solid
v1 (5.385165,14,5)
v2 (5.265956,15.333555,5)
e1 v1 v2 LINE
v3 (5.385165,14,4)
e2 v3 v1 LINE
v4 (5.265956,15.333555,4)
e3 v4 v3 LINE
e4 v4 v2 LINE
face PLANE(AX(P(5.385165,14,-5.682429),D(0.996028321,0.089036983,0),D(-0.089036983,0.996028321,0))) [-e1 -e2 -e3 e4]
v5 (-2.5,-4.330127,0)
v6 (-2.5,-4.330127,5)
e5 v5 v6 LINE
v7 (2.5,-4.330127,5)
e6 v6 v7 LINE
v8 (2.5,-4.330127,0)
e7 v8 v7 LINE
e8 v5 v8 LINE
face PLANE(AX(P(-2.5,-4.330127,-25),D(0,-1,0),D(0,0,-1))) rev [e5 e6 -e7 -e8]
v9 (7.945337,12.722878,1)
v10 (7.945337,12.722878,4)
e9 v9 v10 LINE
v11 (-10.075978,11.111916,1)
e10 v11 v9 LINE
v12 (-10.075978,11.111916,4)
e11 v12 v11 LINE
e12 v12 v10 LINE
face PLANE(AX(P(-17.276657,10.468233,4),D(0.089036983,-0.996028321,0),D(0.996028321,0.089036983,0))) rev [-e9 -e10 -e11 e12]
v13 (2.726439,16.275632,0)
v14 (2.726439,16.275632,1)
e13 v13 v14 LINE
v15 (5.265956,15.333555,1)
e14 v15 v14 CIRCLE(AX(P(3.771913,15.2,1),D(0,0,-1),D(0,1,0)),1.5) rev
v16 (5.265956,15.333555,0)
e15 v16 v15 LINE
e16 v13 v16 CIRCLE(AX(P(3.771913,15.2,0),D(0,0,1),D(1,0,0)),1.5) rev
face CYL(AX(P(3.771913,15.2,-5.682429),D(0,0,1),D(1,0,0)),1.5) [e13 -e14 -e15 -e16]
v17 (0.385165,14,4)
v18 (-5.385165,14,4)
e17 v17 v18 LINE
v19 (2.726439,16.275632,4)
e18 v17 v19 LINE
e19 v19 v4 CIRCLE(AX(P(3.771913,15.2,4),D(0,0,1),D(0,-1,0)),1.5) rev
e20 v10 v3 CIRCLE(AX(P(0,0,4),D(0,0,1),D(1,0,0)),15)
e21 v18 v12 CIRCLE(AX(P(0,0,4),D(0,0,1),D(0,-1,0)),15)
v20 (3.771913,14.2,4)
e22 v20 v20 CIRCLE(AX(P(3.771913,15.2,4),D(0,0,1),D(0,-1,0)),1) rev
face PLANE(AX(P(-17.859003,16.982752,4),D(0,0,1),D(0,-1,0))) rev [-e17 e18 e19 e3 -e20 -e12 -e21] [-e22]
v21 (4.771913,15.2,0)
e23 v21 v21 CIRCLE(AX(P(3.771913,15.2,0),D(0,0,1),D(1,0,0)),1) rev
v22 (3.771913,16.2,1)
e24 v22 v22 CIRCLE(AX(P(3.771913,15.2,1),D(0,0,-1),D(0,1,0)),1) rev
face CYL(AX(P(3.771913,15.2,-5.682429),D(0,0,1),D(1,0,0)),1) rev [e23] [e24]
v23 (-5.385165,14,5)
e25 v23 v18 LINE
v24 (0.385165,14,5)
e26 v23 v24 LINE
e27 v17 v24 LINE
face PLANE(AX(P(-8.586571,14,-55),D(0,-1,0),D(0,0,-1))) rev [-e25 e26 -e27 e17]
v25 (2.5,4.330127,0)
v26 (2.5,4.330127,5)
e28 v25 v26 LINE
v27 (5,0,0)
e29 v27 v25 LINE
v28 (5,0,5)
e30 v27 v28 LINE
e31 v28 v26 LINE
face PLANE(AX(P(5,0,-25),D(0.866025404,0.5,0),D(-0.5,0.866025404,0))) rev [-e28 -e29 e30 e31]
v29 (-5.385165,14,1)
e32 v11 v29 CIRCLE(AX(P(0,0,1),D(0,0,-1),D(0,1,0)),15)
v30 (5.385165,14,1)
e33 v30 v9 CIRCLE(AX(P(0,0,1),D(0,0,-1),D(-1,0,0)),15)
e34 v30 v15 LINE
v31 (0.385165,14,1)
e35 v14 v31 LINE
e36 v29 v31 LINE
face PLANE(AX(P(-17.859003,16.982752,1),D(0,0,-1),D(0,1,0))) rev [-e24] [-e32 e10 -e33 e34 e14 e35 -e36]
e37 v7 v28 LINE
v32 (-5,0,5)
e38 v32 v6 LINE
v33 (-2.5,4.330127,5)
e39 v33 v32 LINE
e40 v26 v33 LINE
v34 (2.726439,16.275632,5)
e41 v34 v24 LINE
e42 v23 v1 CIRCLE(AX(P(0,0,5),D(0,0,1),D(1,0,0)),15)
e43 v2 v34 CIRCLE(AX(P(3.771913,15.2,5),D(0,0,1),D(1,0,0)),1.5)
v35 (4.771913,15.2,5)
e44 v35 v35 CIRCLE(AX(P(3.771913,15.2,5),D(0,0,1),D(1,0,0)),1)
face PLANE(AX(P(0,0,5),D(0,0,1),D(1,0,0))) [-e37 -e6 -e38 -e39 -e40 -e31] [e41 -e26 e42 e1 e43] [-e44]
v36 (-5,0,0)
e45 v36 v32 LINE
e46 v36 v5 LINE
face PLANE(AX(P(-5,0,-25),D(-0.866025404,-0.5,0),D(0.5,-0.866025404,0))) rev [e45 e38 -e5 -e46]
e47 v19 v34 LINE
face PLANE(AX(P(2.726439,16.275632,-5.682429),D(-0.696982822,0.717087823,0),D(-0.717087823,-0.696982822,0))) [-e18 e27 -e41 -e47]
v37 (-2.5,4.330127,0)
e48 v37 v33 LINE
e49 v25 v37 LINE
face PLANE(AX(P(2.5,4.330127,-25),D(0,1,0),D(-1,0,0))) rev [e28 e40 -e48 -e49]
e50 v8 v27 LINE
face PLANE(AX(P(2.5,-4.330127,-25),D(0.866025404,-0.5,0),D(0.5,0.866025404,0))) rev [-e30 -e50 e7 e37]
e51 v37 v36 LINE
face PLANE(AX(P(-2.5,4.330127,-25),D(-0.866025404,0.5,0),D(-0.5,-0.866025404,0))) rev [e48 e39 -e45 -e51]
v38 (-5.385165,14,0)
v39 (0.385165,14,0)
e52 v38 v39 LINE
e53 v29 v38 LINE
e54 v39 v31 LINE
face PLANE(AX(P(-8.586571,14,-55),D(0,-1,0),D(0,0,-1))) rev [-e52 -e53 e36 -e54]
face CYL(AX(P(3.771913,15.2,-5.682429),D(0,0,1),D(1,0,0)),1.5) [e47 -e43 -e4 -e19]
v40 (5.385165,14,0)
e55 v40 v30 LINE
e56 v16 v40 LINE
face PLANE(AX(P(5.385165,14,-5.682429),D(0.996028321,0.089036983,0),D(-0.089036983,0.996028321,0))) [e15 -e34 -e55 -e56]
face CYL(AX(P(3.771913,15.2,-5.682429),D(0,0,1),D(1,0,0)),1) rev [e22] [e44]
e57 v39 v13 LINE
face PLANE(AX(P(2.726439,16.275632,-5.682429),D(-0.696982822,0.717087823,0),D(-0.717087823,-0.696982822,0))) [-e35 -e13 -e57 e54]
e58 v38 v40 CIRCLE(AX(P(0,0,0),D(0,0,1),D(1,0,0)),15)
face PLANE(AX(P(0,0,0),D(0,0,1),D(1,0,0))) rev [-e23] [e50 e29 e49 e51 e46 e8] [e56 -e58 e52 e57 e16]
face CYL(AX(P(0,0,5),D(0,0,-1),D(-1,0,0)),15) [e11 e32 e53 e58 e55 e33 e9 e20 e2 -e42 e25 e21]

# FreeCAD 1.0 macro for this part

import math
import FreeCAD as App
import Part
import Sketcher
from FreeCAD import Vector
Q = App.Units.Quantity

doc = App.newDocument("Part")
params = doc.addObject("Spreadsheet::Sheet", "Params")
for row, (alias, value) in enumerate([
    ("sketch1_diameter", "30 mm"),
    ("pad1_length", "5 mm"),
    ("sketch2_width", "5 mm"),
    ("sketch2_length", "5 mm"),
    ("pocket1_length", "30 mm"),
    ("pocket2_length", "60 mm"),
    ("sketch4_diameter", "2 mm"),
    ("sketch4_radius", "1.5 mm"),
    ("sketch4_width", "5 mm"),
    ("pad2_length", "5 mm"),
    ("sketch5_width", "3 mm"),
    ("sketch6_width", "3 mm"),
    ("sketch6_height", "1.5 mm"),
], start=1):
    params.set(f"A{row}", alias)
    params.set(f"B{row}", "=" + value)
    params.setAlias(f"B{row}", alias)

body = doc.addObject("PartDesign::Body", "Body")

# Sketch on XY plane
sketch1 = body.newObject("Sketcher::SketchObject", "Sketch")
sketch1.AttachmentSupport = (doc.getObject("XY_Plane"), [""])
sketch1.MapMode = "FlatFace"
sketch1.addGeometry(Part.Circle(Vector(0, 0, 0), Vector(0, 0, 1), 15), False)
sketch1.addConstraint(Sketcher.Constraint("Coincident", 0, 3, -1, 1))
sketch1.addConstraint(Sketcher.Constraint("Diameter", 0, 30.0))
sketch1.setExpression("Constraints[1]", "Params.sketch1_diameter")
pad1 = body.newObject("PartDesign::Pad", "Pad")
pad1.Profile = sketch1
pad1.setExpression("Length", "Params.pad1_length")

# Sketch on XY plane
sketch2 = body.newObject("Sketcher::SketchObject", "Sketch001")
sketch2.AttachmentSupport = (doc.getObject("XY_Plane"), [""])
sketch2.MapMode = "FlatFace"
sketch2.AttachmentOffset = App.Placement(Vector(0, 0, 5), App.Rotation())
sketch2.addGeometry(Part.LineSegment(Vector(-2, -4, 0), Vector(2, -4, 0)), False)
sketch2.addGeometry(Part.LineSegment(Vector(2, -4, 0), Vector(5, 0, 0)), False)
sketch2.addGeometry(Part.LineSegment(Vector(5, 0, 0), Vector(2, 4, 0)), False)
sketch2.addGeometry(Part.LineSegment(Vector(2, 4, 0), Vector(-2, 4, 0)), False)
sketch2.addGeometry(Part.LineSegment(Vector(-2, 4, 0), Vector(-5, 0, 0)), False)
sketch2.addGeometry(Part.LineSegment(Vector(-5, 0, 0), Vector(-2, -4, 0)), False)
sketch2.addConstraint(Sketcher.Constraint("Coincident", 0, 2, 1, 1))
sketch2.addConstraint(Sketcher.Constraint("Coincident", 1, 2, 2, 1))
sketch2.addConstraint(Sketcher.Constraint("Coincident", 2, 2, 3, 1))
sketch2.addConstraint(Sketcher.Constraint("Coincident", 3, 2, 4, 1))
sketch2.addConstraint(Sketcher.Constraint("Coincident", 4, 2, 5, 1))
sketch2.addConstraint(Sketcher.Constraint("Coincident", 5, 2, 0, 1))
sketch2.addConstraint(Sketcher.Constraint("Horizontal", 0))
sketch2.addConstraint(Sketcher.Constraint("Horizontal", 3))
sketch2.addConstraint(Sketcher.Constraint("Symmetric", 0, 2, 3, 2, -1, 1))
sketch2.addConstraint(Sketcher.Constraint("Symmetric", 1, 2, 4, 2, -1, 1))
sketch2.addConstraint(Sketcher.Constraint("PointOnObject", 1, 2, -1))
sketch2.addConstraint(Sketcher.Constraint("Parallel", 2, 5))
sketch2.addConstraint(Sketcher.Constraint("Vertical", 0, 2, 2, 2))
sketch2.addConstraint(Sketcher.Constraint("DistanceX", 0, 1, 0, 2, 5.0))
sketch2.addConstraint(Sketcher.Constraint("Angle", 1, Q("60 deg")))
sketch2.addConstraint(Sketcher.Constraint("Distance", 1, 5.0))
sketch2.setExpression("Constraints[13]", "Params.sketch2_width")
sketch2.setExpression("Constraints[15]", "Params.sketch2_length")
pocket1 = body.newObject("PartDesign::Pocket", "Pocket")
pocket1.Profile = sketch2
pocket1.setExpression("Length", "Params.pocket1_length")

# Sketch on XY plane
sketch3 = body.newObject("Sketcher::SketchObject", "Sketch002")
sketch3.AttachmentSupport = (doc.getObject("XY_Plane"), [""])
sketch3.MapMode = "FlatFace"
sketch3.AttachmentOffset = App.Placement(Vector(0, 0, 5), App.Rotation())
sketch3.addGeometry(Part.LineSegment(Vector(-9, 14, 0), Vector(9, 14, 0)), False)
sketch3.addGeometry(Part.LineSegment(Vector(9, 14, 0), Vector(-1, 19, 0)), False)
sketch3.addGeometry(Part.LineSegment(Vector(-1, 19, 0), Vector(-9, 14, 0)), False)
sketch3.addConstraint(Sketcher.Constraint("Coincident", 0, 2, 1, 1))
sketch3.addConstraint(Sketcher.Constraint("Coincident", 1, 2, 2, 1))
sketch3.addConstraint(Sketcher.Constraint("Coincident", 2, 2, 0, 1))
sketch3.addConstraint(Sketcher.Constraint("Horizontal", 0))
sketch3.addConstraint(Sketcher.Constraint("DistanceY", -1, 1, 0, 2, 14.0))
sketch3.addConstraint(Sketcher.Constraint("DistanceX", 0, 1, 0, 2, 17.710361))
sketch3.addConstraint(Sketcher.Constraint("Distance", 1, 11.107118))
sketch3.addConstraint(Sketcher.Constraint("DistanceX", -1, 1, 0, 2, 9.12379))
sketch3.addConstraint(Sketcher.Constraint("DistanceY", -1, 1, 1, 2, 18.675161))
pocket2 = body.newObject("PartDesign::Pocket", "Pocket001")
pocket2.Profile = sketch3
pocket2.setExpression("Length", "Params.pocket2_length")

# Sketch on XY plane
sketch4 = body.newObject("Sketcher::SketchObject", "Sketch003")
sketch4.AttachmentSupport = (doc.getObject("XY_Plane"), [""])
sketch4.MapMode = "FlatFace"
sketch4.AttachmentOffset = App.Placement(Vector(0, 0, 5), App.Rotation())
sketch4.addGeometry(Part.LineSegment(Vector(5.4, 14, 0), Vector(5.3, 15.3, 0)), False)
sketch4.addGeometry(Part.ArcOfCircle(Part.Circle(Vector(3.8, 15.2, 0), Vector(0, 0, 1), 1.5), math.radians(5), math.radians(134)), False)
sketch4.addGeometry(Part.LineSegment(Vector(2.7, 16.3, 0), Vector(0.4, 14, 0)), False)
sketch4.addGeometry(Part.LineSegment(Vector(0.4, 14, 0), Vector(5.4, 14, 0)), False)
sketch4.addGeometry(Part.Circle(Vector(3.8, 15.2, 0), Vector(0, 0, 1), 1), False)
sketch4.addConstraint(Sketcher.Constraint("Tangent", 0, 2, 1, 1))
sketch4.addConstraint(Sketcher.Constraint("Tangent", 1, 2, 2, 1))
sketch4.addConstraint(Sketcher.Constraint("Coincident", 2, 2, 3, 1))
sketch4.addConstraint(Sketcher.Constraint("Coincident", 3, 2, 0, 1))
sketch4.addConstraint(Sketcher.Constraint("Horizontal", 3))
sketch4.addConstraint(Sketcher.Constraint("Coincident", 4, 3, 1, 3))
sketch4.addConstraint(Sketcher.Constraint("Diameter", 4, 2.0))
sketch4.addConstraint(Sketcher.Constraint("Radius", 1, 1.5))
sketch4.addConstraint(Sketcher.Constraint("DistanceX", 3, 1, 3, 2, 5.0))
sketch4.addConstraint(Sketcher.Constraint("DistanceY", -1, 1, 2, 2, 14.0))
sketch4.addConstraint(Sketcher.Constraint("DistanceY", -1, 1, 1, 3, 15.2))
sketch4.addConstraint(Sketcher.Constraint("DistanceX", -1, 1, 1, 2, 2.726439))
sketch4.addConstraint(Sketcher.Constraint("DistanceY", -1, 1, 1, 2, 16.275632))
sketch4.setExpression("Constraints[6]", "Params.sketch4_diameter")
sketch4.setExpression("Constraints[7]", "Params.sketch4_radius")
sketch4.setExpression("Constraints[8]", "Params.sketch4_width")
pad2 = body.newObject("PartDesign::Pad", "Pad001")
pad2.Profile = sketch4
pad2.setExpression("Length", "Params.pad2_length")
pad2.Reversed = True

# Sketch on an angled plane
sketch5 = body.newObject("Sketcher::SketchObject", "Sketch004")
sketch5.Placement = App.Placement(Vector(6.58404, 0.588561, 0), App.Rotation(Vector(0, 0, -1), Vector(-0.089036983, 0.996028321, 0), Vector(0.996028321, 0.089036983, 0), "ZXY"))
sketch5.addGeometry(Part.LineSegment(Vector(-4, 18.5, 0), Vector(-4, 13.5, 0)), False)
sketch5.addGeometry(Part.LineSegment(Vector(-4, 13.5, 0), Vector(-1, 13.5, 0)), False)
sketch5.addGeometry(Part.LineSegment(Vector(-1, 13.5, 0), Vector(-1, 18.5, 0)), False)
sketch5.addGeometry(Part.LineSegment(Vector(-1, 18.5, 0), Vector(-4, 18.5, 0)), False)
sketch5.addConstraint(Sketcher.Constraint("Coincident", 0, 2, 1, 1))
sketch5.addConstraint(Sketcher.Constraint("Coincident", 1, 2, 2, 1))
sketch5.addConstraint(Sketcher.Constraint("Coincident", 2, 2, 3, 1))
sketch5.addConstraint(Sketcher.Constraint("Coincident", 3, 2, 0, 1))
sketch5.addConstraint(Sketcher.Constraint("Vertical", 0))
sketch5.addConstraint(Sketcher.Constraint("Horizontal", 1))
sketch5.addConstraint(Sketcher.Constraint("Vertical", 2))
sketch5.addConstraint(Sketcher.Constraint("Horizontal", 3))
sketch5.addConstraint(Sketcher.Constraint("DistanceX", 1, 1, 1, 2, 3.0))
sketch5.addConstraint(Sketcher.Constraint("DistanceX", 0, 2, -1, 1, 4.0))
sketch5.addConstraint(Sketcher.Constraint("DistanceY", 0, 2, 0, 1, 5.040496))
sketch5.addConstraint(Sketcher.Constraint("DistanceY", -1, 1, 0, 2, 13.464918))
sketch5.setExpression("Constraints[8]", "Params.sketch5_width")
pocket3 = body.newObject("PartDesign::Pocket", "Pocket002")
pocket3.Profile = sketch5
pocket3.Type = "ThroughAll"

# Sketch on an angled plane
sketch6 = body.newObject("Sketcher::SketchObject", "Sketch005")
sketch6.Placement = App.Placement(Vector(6.58404, 0.588561, 0), App.Rotation(Vector(0, 0, -1), Vector(-0.089036983, 0.996028321, 0), Vector(0.996028321, 0.089036983, 0), "ZXY"))
sketch6.addGeometry(Part.LineSegment(Vector(-4, 13.5, 0), Vector(-4, 12, 0)), False)
sketch6.addGeometry(Part.LineSegment(Vector(-4, 12, 0), Vector(-1, 12, 0)), False)
sketch6.addGeometry(Part.LineSegment(Vector(-1, 12, 0), Vector(-1, 13.5, 0)), False)
sketch6.addGeometry(Part.LineSegment(Vector(-1, 13.5, 0), Vector(-4, 13.5, 0)), False)
sketch6.addConstraint(Sketcher.Constraint("Coincident", 0, 2, 1, 1))
sketch6.addConstraint(Sketcher.Constraint("Coincident", 1, 2, 2, 1))
sketch6.addConstraint(Sketcher.Constraint("Coincident", 2, 2, 3, 1))
sketch6.addConstraint(Sketcher.Constraint("Coincident", 3, 2, 0, 1))
sketch6.addConstraint(Sketcher.Constraint("Vertical", 0))
sketch6.addConstraint(Sketcher.Constraint("Horizontal", 1))
sketch6.addConstraint(Sketcher.Constraint("Vertical", 2))
sketch6.addConstraint(Sketcher.Constraint("Horizontal", 3))
sketch6.addConstraint(Sketcher.Constraint("DistanceX", 1, 1, 1, 2, 3.0))
sketch6.addConstraint(Sketcher.Constraint("DistanceY", 0, 2, 0, 1, 1.5))
sketch6.addConstraint(Sketcher.Constraint("DistanceX", 0, 2, -1, 1, 4.0))
sketch6.addConstraint(Sketcher.Constraint("DistanceY", -1, 1, 0, 2, 11.964918))
sketch6.setExpression("Constraints[8]", "Params.sketch6_width")
sketch6.setExpression("Constraints[9]", "Params.sketch6_height")
pocket4 = body.newObject("PartDesign::Pocket", "Pocket003")
pocket4.Profile = sketch6
pocket4.Type = "ThroughAll"
pocket4.Midplane = True

doc.recompute()
